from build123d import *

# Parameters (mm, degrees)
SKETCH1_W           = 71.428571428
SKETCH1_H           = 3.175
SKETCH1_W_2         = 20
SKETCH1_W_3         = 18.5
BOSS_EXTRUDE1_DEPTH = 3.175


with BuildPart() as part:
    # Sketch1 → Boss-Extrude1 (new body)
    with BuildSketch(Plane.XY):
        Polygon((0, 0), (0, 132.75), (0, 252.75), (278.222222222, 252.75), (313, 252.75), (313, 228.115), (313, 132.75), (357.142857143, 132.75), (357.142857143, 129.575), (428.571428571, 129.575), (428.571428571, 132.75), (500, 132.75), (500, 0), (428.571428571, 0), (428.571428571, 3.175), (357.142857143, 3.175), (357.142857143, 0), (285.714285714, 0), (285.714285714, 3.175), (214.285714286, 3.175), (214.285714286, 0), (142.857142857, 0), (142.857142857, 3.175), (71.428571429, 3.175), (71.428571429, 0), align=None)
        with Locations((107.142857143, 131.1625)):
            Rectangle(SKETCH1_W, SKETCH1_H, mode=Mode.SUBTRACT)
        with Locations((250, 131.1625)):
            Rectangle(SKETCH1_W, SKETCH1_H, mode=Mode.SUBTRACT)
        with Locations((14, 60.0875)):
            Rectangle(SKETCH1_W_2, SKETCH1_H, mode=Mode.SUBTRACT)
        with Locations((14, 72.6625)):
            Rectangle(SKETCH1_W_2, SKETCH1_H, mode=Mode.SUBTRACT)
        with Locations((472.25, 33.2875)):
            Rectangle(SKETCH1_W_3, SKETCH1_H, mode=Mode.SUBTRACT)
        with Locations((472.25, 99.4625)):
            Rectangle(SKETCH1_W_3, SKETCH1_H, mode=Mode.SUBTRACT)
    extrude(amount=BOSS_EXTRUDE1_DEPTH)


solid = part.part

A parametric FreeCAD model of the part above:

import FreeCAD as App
import Part
import Sketcher

V = App.Vector
Q = App.Units.Quantity


def add_polygon(sketch, points):
    """Adds a closed chain of lines whose ends are joined by coincident constraints."""
    first, n = sketch.GeometryCount, len(points)
    for a, b in zip(points, points[1:] + points[:1]):
        sketch.addGeometry(Part.LineSegment(App.Vector(*a, 0), App.Vector(*b, 0)), False)
    for i in range(n):
        sketch.addConstraint(Sketcher.Constraint("Coincident", first + i, 2, first + (i + 1) % n, 1))

doc = App.newDocument("Part")
body = doc.addObject("PartDesign::Body", "Body")

# Sketch on XY plane
sketch1 = body.newObject("Sketcher::SketchObject", "Sketch")
sketch1.AttachmentSupport = (doc.getObject("XY_Plane"), [""])
sketch1.MapMode = "FlatFace"
add_polygon(sketch1, [(0, 252.8), (0, 0), (71.4, 0), (71.4, 3.2), (142.9, 3.2), (142.9, 0), (214.3, 0), (214.3, 3.2), (285.7, 3.2), (285.7, 0), (357.1, 0), (357.1, 3.2), (428.6, 3.2), (428.6, 0), (500, 0), (500, 132.8), (428.6, 132.8), (428.6, 129.6), (357.1, 129.6), (357.1, 132.8), (313, 132.8), (313, 252.8)])  # lines 0-21
add_polygon(sketch1, [(463, 31.7), (463, 34.9), (481.5, 34.9), (481.5, 31.7)])  # lines 22-25
add_polygon(sketch1, [(4, 58.5), (4, 61.7), (24, 61.7), (24, 58.5)])  # lines 26-29
add_polygon(sketch1, [(4, 71.1), (4, 74.2), (24, 74.2), (24, 71.1)])  # lines 30-33
add_polygon(sketch1, [(463, 97.9), (463, 101), (481.5, 101), (481.5, 97.9)])  # lines 34-37
add_polygon(sketch1, [(214.3, 129.6), (214.3, 132.8), (285.7, 132.8), (285.7, 129.6)])  # lines 38-41
add_polygon(sketch1, [(71.4, 129.6), (71.4, 132.8), (142.9, 132.8), (142.9, 129.6)])  # lines 42-45
sketch1.addConstraint(Sketcher.Constraint("Vertical", 0))
sketch1.addConstraint(Sketcher.Constraint("Horizontal", 1))
sketch1.addConstraint(Sketcher.Constraint("Vertical", 2))
sketch1.addConstraint(Sketcher.Constraint("Horizontal", 3))
sketch1.addConstraint(Sketcher.Constraint("Vertical", 4))
sketch1.addConstraint(Sketcher.Constraint("Horizontal", 5))
sketch1.addConstraint(Sketcher.Constraint("Vertical", 6))
sketch1.addConstraint(Sketcher.Constraint("Horizontal", 7))
sketch1.addConstraint(Sketcher.Constraint("Vertical", 8))
sketch1.addConstraint(Sketcher.Constraint("Horizontal", 9))
sketch1.addConstraint(Sketcher.Constraint("Vertical", 10))
sketch1.addConstraint(Sketcher.Constraint("Horizontal", 11))
sketch1.addConstraint(Sketcher.Constraint("Vertical", 12))
sketch1.addConstraint(Sketcher.Constraint("Horizontal", 13))
sketch1.addConstraint(Sketcher.Constraint("Vertical", 14))
sketch1.addConstraint(Sketcher.Constraint("Horizontal", 15))
sketch1.addConstraint(Sketcher.Constraint("Vertical", 16))
sketch1.addConstraint(Sketcher.Constraint("Horizontal", 17))
sketch1.addConstraint(Sketcher.Constraint("Vertical", 18))
sketch1.addConstraint(Sketcher.Constraint("Horizontal", 19))
sketch1.addConstraint(Sketcher.Constraint("Vertical", 20))
sketch1.addConstraint(Sketcher.Constraint("Horizontal", 21))
sketch1.addConstraint(Sketcher.Constraint("Vertical", 22))
sketch1.addConstraint(Sketcher.Constraint("Horizontal", 23))
sketch1.addConstraint(Sketcher.Constraint("Vertical", 24))
sketch1.addConstraint(Sketcher.Constraint("Horizontal", 25))
sketch1.addConstraint(Sketcher.Constraint("Vertical", 26))
sketch1.addConstraint(Sketcher.Constraint("Horizontal", 27))
sketch1.addConstraint(Sketcher.Constraint("Vertical", 28))
sketch1.addConstraint(Sketcher.Constraint("Horizontal", 29))
sketch1.addConstraint(Sketcher.Constraint("Vertical", 30))
sketch1.addConstraint(Sketcher.Constraint("Horizontal", 31))
sketch1.addConstraint(Sketcher.Constraint("Vertical", 32))
sketch1.addConstraint(Sketcher.Constraint("Horizontal", 33))
sketch1.addConstraint(Sketcher.Constraint("Vertical", 34))
sketch1.addConstraint(Sketcher.Constraint("Horizontal", 35))
sketch1.addConstraint(Sketcher.Constraint("Vertical", 36))
sketch1.addConstraint(Sketcher.Constraint("Horizontal", 37))
sketch1.addConstraint(Sketcher.Constraint("Vertical", 38))
sketch1.addConstraint(Sketcher.Constraint("Horizontal", 39))
sketch1.addConstraint(Sketcher.Constraint("Vertical", 40))
sketch1.addConstraint(Sketcher.Constraint("Horizontal", 41))
sketch1.addConstraint(Sketcher.Constraint("Vertical", 42))
sketch1.addConstraint(Sketcher.Constraint("Horizontal", 43))
sketch1.addConstraint(Sketcher.Constraint("Vertical", 44))
sketch1.addConstraint(Sketcher.Constraint("Horizontal", 45))
sketch1.addConstraint(Sketcher.Constraint("Coincident", 0, 2, -1, 1))
sketch1.addConstraint(Sketcher.Constraint("PointOnObject", 4, 2, -1))
sketch1.addConstraint(Sketcher.Constraint("PointOnObject", 8, 2, -1))
sketch1.addConstraint(Sketcher.Constraint("PointOnObject", 12, 2, -1))
sketch1.addConstraint(Sketcher.Constraint("Horizontal", 3, 2, 6, 2))
sketch1.addConstraint(Sketcher.Constraint("Horizontal", 7, 2, 10, 2))
sketch1.addConstraint(Sketcher.Constraint("Horizontal", 15, 2, 18, 2))
sketch1.addConstraint(Sketcher.Constraint("Horizontal", 19, 2, 38, 2))
sketch1.addConstraint(Sketcher.Constraint("Horizontal", 17, 2, 40, 2))
sketch1.addConstraint(Sketcher.Constraint("Horizontal", 39, 2, 42, 2))
sketch1.addConstraint(Sketcher.Constraint("Horizontal", 41, 2, 44, 2))
sketch1.addConstraint(Sketcher.Constraint("Vertical", 12, 2, 15, 2))
sketch1.addConstraint(Sketcher.Constraint("Vertical", 10, 2, 17, 2))
sketch1.addConstraint(Sketcher.Constraint("Vertical", 29, 2, 30, 2))
sketch1.addConstraint(Sketcher.Constraint("Vertical", 28, 2, 31, 2))
sketch1.addConstraint(Sketcher.Constraint("Vertical", 25, 2, 34, 2))
sketch1.addConstraint(Sketcher.Constraint("Vertical", 24, 2, 35, 2))
sketch1.addConstraint(Sketcher.Constraint("Vertical", 6, 2, 38, 2))
sketch1.addConstraint(Sketcher.Constraint("Vertical", 8, 2, 39, 2))
sketch1.addConstraint(Sketcher.Constraint("Vertical", 2, 2, 42, 2))
sketch1.addConstraint(Sketcher.Constraint("Vertical", 4, 2, 43, 2))
sketch1.addConstraint(Sketcher.Constraint("Equal", 1, 3))
sketch1.addConstraint(Sketcher.Constraint("Equal", 3, 5))
sketch1.addConstraint(Sketcher.Constraint("Equal", 5, 7))
sketch1.addConstraint(Sketcher.Constraint("Equal", 7, 9))
sketch1.addConstraint(Sketcher.Constraint("Equal", 9, 11))
sketch1.addConstraint(Sketcher.Constraint("Equal", 11, 13))
sketch1.addConstraint(Sketcher.Constraint("Equal", 12, 16))
sketch1.addConstraint(Sketcher.Constraint("Equal", 18, 22))
sketch1.addConstraint(Sketcher.Constraint("Equal", 24, 26))
sketch1.addConstraint(Sketcher.Constraint("Equal", 28, 30))
sketch1.addConstraint(Sketcher.Constraint("Equal", 32, 34))
sketch1.addConstraint(Sketcher.Constraint("DistanceX", 21, 2, 21, 1, Q("313 mm")))
sketch1.addConstraint(Sketcher.Constraint("DistanceX", 27, 1, 27, 2, Q("20 mm")))
sketch1.addConstraint(Sketcher.Constraint("DistanceY", 20, 1, 20, 2, Q("120 mm")))
sketch1.addConstraint(Sketcher.Constraint("DistanceX", 23, 1, 23, 2, Q("18.5 mm")))
sketch1.addConstraint(Sketcher.Constraint("DistanceX", -1, 1, 13, 2, Q("500 mm")))
sketch1.addConstraint(Sketcher.Constraint("DistanceX", -1, 1, 22, 2, Q("463 mm")))
sketch1.addConstraint(Sketcher.Constraint("DistanceX", -1, 1, 26, 2, Q("4 mm")))
sketch1.addConstraint(Sketcher.Constraint("DistanceY", 23, 2, 36, 2, Q("63 mm")))
sketch1.addConstraint(Sketcher.Constraint("DistanceY", 0, 2, 0, 1, Q("252.75 mm")))
sketch1.addConstraint(Sketcher.Constraint("DistanceY", -1, 1, 24, 2, Q("31.7 mm")))
sketch1.addConstraint(Sketcher.Constraint("DistanceY", -1, 1, 28, 2, Q("58.5 mm")))
sketch1.addConstraint(Sketcher.Constraint("DistanceY", 11, 2, 16, 2, Q("126.4 mm")))
sketch1.addConstraint(Sketcher.Constraint("DistanceY", 27, 2, 32, 2, Q("9.4 mm")))
pad1 = body.newObject("PartDesign::Pad", "Pad")
pad1.Profile = sketch1
pad1.Length = 3.175

doc.recompute()
